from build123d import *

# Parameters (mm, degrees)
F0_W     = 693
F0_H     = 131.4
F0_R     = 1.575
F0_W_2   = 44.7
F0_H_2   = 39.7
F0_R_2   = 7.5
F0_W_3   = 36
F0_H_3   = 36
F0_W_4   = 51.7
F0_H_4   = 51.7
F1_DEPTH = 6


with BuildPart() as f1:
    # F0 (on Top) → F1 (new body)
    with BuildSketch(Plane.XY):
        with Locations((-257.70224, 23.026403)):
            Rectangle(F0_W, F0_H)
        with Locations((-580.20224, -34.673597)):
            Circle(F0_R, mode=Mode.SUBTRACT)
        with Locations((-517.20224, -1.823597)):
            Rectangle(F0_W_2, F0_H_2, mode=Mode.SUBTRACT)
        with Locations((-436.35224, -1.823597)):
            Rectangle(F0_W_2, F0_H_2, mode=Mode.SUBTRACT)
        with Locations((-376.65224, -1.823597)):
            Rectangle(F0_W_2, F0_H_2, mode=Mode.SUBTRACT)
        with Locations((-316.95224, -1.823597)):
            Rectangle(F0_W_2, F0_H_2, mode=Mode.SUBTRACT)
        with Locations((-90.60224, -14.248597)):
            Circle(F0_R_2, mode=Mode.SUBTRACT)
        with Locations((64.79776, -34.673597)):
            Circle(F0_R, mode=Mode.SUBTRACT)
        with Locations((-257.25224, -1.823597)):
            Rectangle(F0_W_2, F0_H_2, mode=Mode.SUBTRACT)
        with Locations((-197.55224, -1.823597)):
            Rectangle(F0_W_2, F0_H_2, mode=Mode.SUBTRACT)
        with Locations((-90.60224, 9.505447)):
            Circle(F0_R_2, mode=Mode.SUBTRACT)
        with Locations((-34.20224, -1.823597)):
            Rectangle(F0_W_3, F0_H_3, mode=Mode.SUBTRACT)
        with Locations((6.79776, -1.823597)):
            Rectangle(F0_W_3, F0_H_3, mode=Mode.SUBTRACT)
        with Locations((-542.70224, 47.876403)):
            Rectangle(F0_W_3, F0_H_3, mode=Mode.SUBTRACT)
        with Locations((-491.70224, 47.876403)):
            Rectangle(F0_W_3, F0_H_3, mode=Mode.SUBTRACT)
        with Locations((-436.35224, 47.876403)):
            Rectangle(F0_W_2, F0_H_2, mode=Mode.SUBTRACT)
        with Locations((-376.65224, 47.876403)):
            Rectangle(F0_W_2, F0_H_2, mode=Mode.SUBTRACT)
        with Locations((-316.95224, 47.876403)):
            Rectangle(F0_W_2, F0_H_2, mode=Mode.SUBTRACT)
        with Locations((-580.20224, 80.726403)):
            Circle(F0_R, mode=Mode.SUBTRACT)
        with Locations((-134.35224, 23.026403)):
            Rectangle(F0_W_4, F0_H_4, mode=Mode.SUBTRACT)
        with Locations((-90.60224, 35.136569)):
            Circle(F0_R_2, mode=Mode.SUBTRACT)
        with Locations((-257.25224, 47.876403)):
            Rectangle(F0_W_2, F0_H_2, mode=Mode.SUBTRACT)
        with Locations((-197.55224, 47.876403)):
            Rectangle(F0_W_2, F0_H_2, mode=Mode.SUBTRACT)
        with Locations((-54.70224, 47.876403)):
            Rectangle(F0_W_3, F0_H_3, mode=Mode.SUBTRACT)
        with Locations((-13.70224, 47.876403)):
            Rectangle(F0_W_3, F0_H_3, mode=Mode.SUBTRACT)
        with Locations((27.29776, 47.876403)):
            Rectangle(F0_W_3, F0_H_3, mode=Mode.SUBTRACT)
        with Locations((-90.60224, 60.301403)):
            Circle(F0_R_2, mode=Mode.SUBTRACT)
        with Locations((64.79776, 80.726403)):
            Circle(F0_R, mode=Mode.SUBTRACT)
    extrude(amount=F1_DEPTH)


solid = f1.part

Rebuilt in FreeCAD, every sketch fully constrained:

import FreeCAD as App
import Part
import Sketcher

V = App.Vector
Q = App.Units.Quantity


def add_polygon(sketch, points):
    """Adds a closed chain of lines whose ends are joined by coincident constraints."""
    first, n = sketch.GeometryCount, len(points)
    for a, b in zip(points, points[1:] + points[:1]):
        sketch.addGeometry(Part.LineSegment(App.Vector(*a, 0), App.Vector(*b, 0)), False)
    for i in range(n):
        sketch.addConstraint(Sketcher.Constraint("Coincident", first + i, 2, first + (i + 1) % n, 1))

doc = App.newDocument("Part")
params = doc.addObject("Spreadsheet::Sheet", "Params")
for row, (alias, value) in enumerate([
    ("sketch1_diameter", "15 mm"),
    ("sketch1_diameter2", "3.15 mm"),
    ("sketch1_width", "693 mm"),
    ("sketch1_width2", "36 mm"),
    ("sketch1_width3", "44.7 mm"),
    ("pad1_length", "6 mm"),
], start=1):
    params.set(f"A{row}", alias)
    params.set(f"B{row}", "=" + value)
    params.setAlias(f"B{row}", alias)

body = doc.addObject("PartDesign::Body", "Body")

# Sketch on XY plane
sketch1 = body.newObject("Sketcher::SketchObject", "Sketch")
sketch1.AttachmentSupport = (doc.getObject("XY_Plane"), [""])
sketch1.MapMode = "FlatFace"
add_polygon(sketch1, [(-604.2, 88.7), (-604.2, -42.7), (88.8, -42.7), (88.8, 88.7)])  # lines 0-3
sketch1.addGeometry(Part.Circle(V(-580.2, -34.7, 0), V(0, 0, 1), 1.6), False)  # 4
add_polygon(sketch1, [(-494.9, -21.7), (-539.6, -21.7), (-539.6, 18), (-494.9, 18)])  # lines 5-8
add_polygon(sketch1, [(-414, -21.7), (-458.7, -21.7), (-458.7, 18), (-414, 18)])  # lines 9-12
add_polygon(sketch1, [(-354.3, -21.7), (-399, -21.7), (-399, 18), (-354.3, 18)])  # lines 13-16
add_polygon(sketch1, [(-294.6, -21.7), (-339.3, -21.7), (-339.3, 18), (-294.6, 18)])  # lines 17-20
sketch1.addGeometry(Part.Circle(V(64.8, -34.7, 0), V(0, 0, 1), 1.6), False)  # 21
sketch1.addGeometry(Part.Circle(V(-90.6, -14.2, 0), V(0, 0, 1), 7.5), False)  # 22
add_polygon(sketch1, [(-234.9, -21.7), (-279.6, -21.7), (-279.6, 18), (-234.9, 18)])  # lines 23-26
add_polygon(sketch1, [(-175.2, -21.7), (-219.9, -21.7), (-219.9, 18), (-175.2, 18)])  # lines 27-30
add_polygon(sketch1, [(-16.2, -19.8), (-52.2, -19.8), (-52.2, 16.2), (-16.2, 16.2)])  # lines 31-34
add_polygon(sketch1, [(24.8, -19.8), (-11.2, -19.8), (-11.2, 16.2), (24.8, 16.2)])  # lines 35-38
sketch1.addGeometry(Part.Circle(V(-90.6, 9.5, 0), V(0, 0, 1), 7.5), False)  # 39
add_polygon(sketch1, [(-524.7, 29.9), (-560.7, 29.9), (-560.7, 65.9), (-524.7, 65.9)])  # lines 40-43
add_polygon(sketch1, [(-473.7, 29.9), (-509.7, 29.9), (-509.7, 65.9), (-473.7, 65.9)])  # lines 44-47
add_polygon(sketch1, [(-414, 28), (-458.7, 28), (-458.7, 67.7), (-414, 67.7)])  # lines 48-51
add_polygon(sketch1, [(-354.3, 28), (-399, 28), (-399, 67.7), (-354.3, 67.7)])  # lines 52-55
add_polygon(sketch1, [(-294.6, 28), (-339.3, 28), (-339.3, 67.7), (-294.6, 67.7)])  # lines 56-59
sketch1.addGeometry(Part.Circle(V(-580.2, 80.7, 0), V(0, 0, 1), 1.6), False)  # 60
add_polygon(sketch1, [(-108.5, -2.8), (-160.2, -2.8), (-160.2, 48.9), (-108.5, 48.9)])  # lines 61-64
add_polygon(sketch1, [(-234.9, 28), (-279.6, 28), (-279.6, 67.7), (-234.9, 67.7)])  # lines 65-68
add_polygon(sketch1, [(-175.2, 28), (-219.9, 28), (-219.9, 67.7), (-175.2, 67.7)])  # lines 69-72
sketch1.addGeometry(Part.Circle(V(-90.6, 35.1, 0), V(0, 0, 1), 7.5), False)  # 73
add_polygon(sketch1, [(-36.7, 29.9), (-72.7, 29.9), (-72.7, 65.9), (-36.7, 65.9)])  # lines 74-77
add_polygon(sketch1, [(4.3, 29.9), (-31.7, 29.9), (-31.7, 65.9), (4.3, 65.9)])  # lines 78-81
add_polygon(sketch1, [(45.3, 29.9), (9.3, 29.9), (9.3, 65.9), (45.3, 65.9)])  # lines 82-85
sketch1.addGeometry(Part.Circle(V(-90.6, 60.3, 0), V(0, 0, 1), 7.5), False)  # 86
sketch1.addGeometry(Part.Circle(V(64.8, 80.7, 0), V(0, 0, 1), 1.6), False)  # 87
sketch1.addConstraint([
    Sketcher.Constraint("Vertical", 0),
    Sketcher.Constraint("Horizontal", 1),
    Sketcher.Constraint("Vertical", 2),
    Sketcher.Constraint("Horizontal", 3),
    Sketcher.Constraint("Horizontal", 5),
    Sketcher.Constraint("Vertical", 6),
    Sketcher.Constraint("Horizontal", 7),
    Sketcher.Constraint("Vertical", 8),
    Sketcher.Constraint("Horizontal", 9),
    Sketcher.Constraint("Vertical", 10),
    Sketcher.Constraint("Horizontal", 11),
    Sketcher.Constraint("Vertical", 12),
    Sketcher.Constraint("Horizontal", 13),
    Sketcher.Constraint("Vertical", 14),
    Sketcher.Constraint("Horizontal", 15),
    Sketcher.Constraint("Vertical", 16),
    Sketcher.Constraint("Horizontal", 17),
    Sketcher.Constraint("Vertical", 18),
    Sketcher.Constraint("Horizontal", 19),
    Sketcher.Constraint("Vertical", 20),
    Sketcher.Constraint("Horizontal", 23),
    Sketcher.Constraint("Vertical", 24),
    Sketcher.Constraint("Horizontal", 25),
    Sketcher.Constraint("Vertical", 26),
    Sketcher.Constraint("Horizontal", 27),
    Sketcher.Constraint("Vertical", 28),
    Sketcher.Constraint("Horizontal", 29),
    Sketcher.Constraint("Vertical", 30),
    Sketcher.Constraint("Horizontal", 31),
    Sketcher.Constraint("Vertical", 32),
    Sketcher.Constraint("Horizontal", 33),
    Sketcher.Constraint("Vertical", 34),
    Sketcher.Constraint("Horizontal", 35),
    Sketcher.Constraint("Vertical", 36),
    Sketcher.Constraint("Horizontal", 37),
    Sketcher.Constraint("Vertical", 38),
    Sketcher.Constraint("Horizontal", 40),
    Sketcher.Constraint("Vertical", 41),
    Sketcher.Constraint("Horizontal", 42),
    Sketcher.Constraint("Vertical", 43),
    Sketcher.Constraint("Horizontal", 44),
    Sketcher.Constraint("Vertical", 45),
    Sketcher.Constraint("Horizontal", 46),
    Sketcher.Constraint("Vertical", 47),
    Sketcher.Constraint("Horizontal", 48),
    Sketcher.Constraint("Vertical", 49),
    Sketcher.Constraint("Horizontal", 50),
    Sketcher.Constraint("Vertical", 51),
    Sketcher.Constraint("Horizontal", 52),
    Sketcher.Constraint("Vertical", 53),
    Sketcher.Constraint("Horizontal", 54),
    Sketcher.Constraint("Vertical", 55),
    Sketcher.Constraint("Horizontal", 56),
    Sketcher.Constraint("Vertical", 57),
    Sketcher.Constraint("Horizontal", 58),
    Sketcher.Constraint("Vertical", 59),
    Sketcher.Constraint("Horizontal", 61),
    Sketcher.Constraint("Vertical", 62),
    Sketcher.Constraint("Horizontal", 63),
    Sketcher.Constraint("Vertical", 64),
    Sketcher.Constraint("Horizontal", 65),
    Sketcher.Constraint("Vertical", 66),
    Sketcher.Constraint("Horizontal", 67),
    Sketcher.Constraint("Vertical", 68),
    Sketcher.Constraint("Horizontal", 69),
    Sketcher.Constraint("Vertical", 70),
    Sketcher.Constraint("Horizontal", 71),
    Sketcher.Constraint("Vertical", 72),
    Sketcher.Constraint("Horizontal", 74),
    Sketcher.Constraint("Vertical", 75),
    Sketcher.Constraint("Horizontal", 76),
    Sketcher.Constraint("Vertical", 77),
    Sketcher.Constraint("Horizontal", 78),
    Sketcher.Constraint("Vertical", 79),
    Sketcher.Constraint("Horizontal", 80),
    Sketcher.Constraint("Vertical", 81),
    Sketcher.Constraint("Horizontal", 82),
    Sketcher.Constraint("Vertical", 83),
    Sketcher.Constraint("Horizontal", 84),
    Sketcher.Constraint("Vertical", 85),
    Sketcher.Constraint("Equal", 4, 21),
    Sketcher.Constraint("Equal", 22, 39),
    Sketcher.Constraint("Equal", 21, 60),
    Sketcher.Constraint("Equal", 39, 73),
    Sketcher.Constraint("Equal", 73, 86),
    Sketcher.Constraint("Equal", 60, 87),
    Sketcher.Constraint("Horizontal", 4, 3, 21, 3),
    Sketcher.Constraint("Horizontal", 60, 3, 87, 3),
    Sketcher.Constraint("Horizontal", 8, 2, 9, 2),
    Sketcher.Constraint("Horizontal", 7, 2, 10, 2),
    Sketcher.Constraint("Horizontal", 12, 2, 13, 2),
    Sketcher.Constraint("Horizontal", 11, 2, 14, 2),
    Sketcher.Constraint("Horizontal", 16, 2, 17, 2),
    Sketcher.Constraint("Horizontal", 15, 2, 18, 2),
    Sketcher.Constraint("Horizontal", 20, 2, 23, 2),
    Sketcher.Constraint("Horizontal", 19, 2, 24, 2),
    Sketcher.Constraint("Horizontal", 26, 2, 27, 2),
    Sketcher.Constraint("Horizontal", 25, 2, 28, 2),
    Sketcher.Constraint("Horizontal", 34, 2, 35, 2),
    Sketcher.Constraint("Horizontal", 33, 2, 36, 2),
    Sketcher.Constraint("Horizontal", 43, 2, 44, 2),
    Sketcher.Constraint("Horizontal", 42, 2, 45, 2),
    Sketcher.Constraint("Horizontal", 51, 2, 52, 2),
    Sketcher.Constraint("Horizontal", 50, 2, 53, 2),
    Sketcher.Constraint("Horizontal", 55, 2, 56, 2),
    Sketcher.Constraint("Horizontal", 54, 2, 57, 2),
    Sketcher.Constraint("Horizontal", 59, 2, 65, 2),
    Sketcher.Constraint("Horizontal", 58, 2, 66, 2),
    Sketcher.Constraint("Horizontal", 68, 2, 69, 2),
    Sketcher.Constraint("Horizontal", 67, 2, 70, 2),
    Sketcher.Constraint("Horizontal", 47, 2, 74, 2),
    Sketcher.Constraint("Horizontal", 46, 2, 75, 2),
    Sketcher.Constraint("Horizontal", 77, 2, 78, 2),
    Sketcher.Constraint("Horizontal", 76, 2, 79, 2),
    Sketcher.Constraint("Horizontal", 81, 2, 82, 2),
    Sketcher.Constraint("Horizontal", 80, 2, 83, 2),
    Sketcher.Constraint("Vertical", 22, 3, 39, 3),
    Sketcher.Constraint("Vertical", 4, 3, 60, 3),
    Sketcher.Constraint("Vertical", 39, 3, 73, 3),
    Sketcher.Constraint("Vertical", 73, 3, 86, 3),
    Sketcher.Constraint("Vertical", 21, 3, 87, 3),
    Sketcher.Constraint("Vertical", 10, 2, 48, 2),
    Sketcher.Constraint("Vertical", 12, 2, 50, 2),
    Sketcher.Constraint("Vertical", 14, 2, 52, 2),
    Sketcher.Constraint("Vertical", 16, 2, 54, 2),
    Sketcher.Constraint("Vertical", 18, 2, 56, 2),
    Sketcher.Constraint("Vertical", 20, 2, 58, 2),
    Sketcher.Constraint("Vertical", 24, 2, 65, 2),
    Sketcher.Constraint("Vertical", 26, 2, 67, 2),
    Sketcher.Constraint("Vertical", 28, 2, 69, 2),
    Sketcher.Constraint("Vertical", 30, 2, 71, 2),
    Sketcher.Constraint("Equal", 7, 9),
    Sketcher.Constraint("Equal", 11, 13),
    Sketcher.Constraint("Equal", 15, 17),
    Sketcher.Constraint("Equal", 19, 23),
    Sketcher.Constraint("Equal", 25, 27),
    Sketcher.Constraint("Equal", 33, 35),
    Sketcher.Constraint("Equal", 37, 40),
    Sketcher.Constraint("Equal", 42, 44),
    Sketcher.Constraint("Equal", 46, 74),
    Sketcher.Constraint("Equal", 76, 78),
    Sketcher.Constraint("Equal", 80, 82),
    Sketcher.Constraint("Equal", 84, 32),
    Sketcher.Constraint("Equal", 38, 41),
    Sketcher.Constraint("Equal", 30, 49),
    Sketcher.Constraint("Equal", 63, 62),
    Sketcher.Constraint("Diameter", 22, Q("15 mm")),
    Sketcher.Constraint("Diameter", 4, Q("3.15 mm")),
    Sketcher.Constraint("DistanceX", 1, 1, 1, 2, Q("693 mm")),
    Sketcher.Constraint("DistanceX", 31, 2, 31, 1, Q("36 mm")),
    Sketcher.Constraint("DistanceX", 5, 2, 5, 1, Q("44.7 mm")),
    Sketcher.Constraint("DistanceX", 61, 2, 61, 1, Q("51.7 mm")),
    Sketcher.Constraint("DistanceY", 0, 2, 0, 1, Q("131.4 mm")),
    Sketcher.Constraint("DistanceY", 6, 1, 6, 2, Q("39.7 mm")),
    Sketcher.Constraint("DistanceX", 4, 3, -1, 1, Q("580.20224 mm")),
    Sketcher.Constraint("DistanceX", -1, 1, 21, 3, Q("64.79776 mm")),
    Sketcher.Constraint("DistanceX", 22, 3, -1, 1, Q("90.60224 mm")),
    Sketcher.Constraint("DistanceY", -1, 1, 73, 3, Q("35.136569 mm")),
    Sketcher.Constraint("DistanceX", 0, 2, -1, 1, Q("604.20224 mm")),
    Sketcher.Constraint("DistanceX", 5, 2, -1, 1, Q("539.55224 mm")),
    Sketcher.Constraint("DistanceX", 9, 2, -1, 1, Q("458.70224 mm")),
    Sketcher.Constraint("DistanceX", 13, 2, -1, 1, Q("399.00224 mm")),
    Sketcher.Constraint("DistanceX", 17, 2, -1, 1, Q("339.30224 mm")),
    Sketcher.Constraint("DistanceX", 23, 2, -1, 1, Q("279.60224 mm")),
    Sketcher.Constraint("DistanceX", 27, 2, -1, 1, Q("219.90224 mm")),
    Sketcher.Constraint("DistanceX", 31, 2, -1, 1, Q("52.20224 mm")),
    Sketcher.Constraint("DistanceX", 35, 2, -1, 1, Q("11.20224 mm")),
    Sketcher.Constraint("DistanceX", 40, 2, -1, 1, Q("560.70224 mm")),
    Sketcher.Constraint("DistanceX", 44, 2, -1, 1, Q("509.70224 mm")),
    Sketcher.Constraint("DistanceX", 61, 2, -1, 1, Q("160.20224 mm")),
    Sketcher.Constraint("DistanceX", 74, 2, -1, 1, Q("72.70224 mm")),
    Sketcher.Constraint("DistanceX", 78, 2, -1, 1, Q("31.70224 mm")),
    Sketcher.Constraint("DistanceX", -1, 1, 82, 2, Q("9.29776 mm")),
    Sketcher.Constraint("DistanceY", 4, 3, -1, 1, Q("34.673597 mm")),
    Sketcher.Constraint("DistanceY", 22, 3, -1, 1, Q("14.248597 mm")),
    Sketcher.Constraint("DistanceY", -1, 1, 39, 3, Q("9.505447 mm")),
    Sketcher.Constraint("DistanceY", -1, 1, 60, 3, Q("80.726403 mm")),
    Sketcher.Constraint("DistanceY", -1, 1, 86, 3, Q("60.301403 mm")),
    Sketcher.Constraint("DistanceY", 0, 2, -1, 1, Q("42.673597 mm")),
    Sketcher.Constraint("DistanceY", 5, 2, -1, 1, Q("21.673597 mm")),
    Sketcher.Constraint("DistanceY", 31, 2, -1, 1, Q("19.823597 mm")),
    Sketcher.Constraint("DistanceY", -1, 1, 40, 2, Q("29.876403 mm")),
    Sketcher.Constraint("DistanceY", -1, 1, 48, 2, Q("28.026403 mm")),
    Sketcher.Constraint("DistanceY", 61, 2, -1, 1, Q("2.823597 mm")),
])
sketch1.setExpression("Constraints[226]", "Params.sketch1_diameter")
sketch1.setExpression("Constraints[227]", "Params.sketch1_diameter2")
sketch1.setExpression("Constraints[228]", "Params.sketch1_width")
sketch1.setExpression("Constraints[229]", "Params.sketch1_width2")
sketch1.setExpression("Constraints[230]", "Params.sketch1_width3")
pad1 = body.newObject("PartDesign::Pad", "Pad")
pad1.Profile = sketch1
pad1.setExpression("Length", "Params.pad1_length")

doc.recompute()
